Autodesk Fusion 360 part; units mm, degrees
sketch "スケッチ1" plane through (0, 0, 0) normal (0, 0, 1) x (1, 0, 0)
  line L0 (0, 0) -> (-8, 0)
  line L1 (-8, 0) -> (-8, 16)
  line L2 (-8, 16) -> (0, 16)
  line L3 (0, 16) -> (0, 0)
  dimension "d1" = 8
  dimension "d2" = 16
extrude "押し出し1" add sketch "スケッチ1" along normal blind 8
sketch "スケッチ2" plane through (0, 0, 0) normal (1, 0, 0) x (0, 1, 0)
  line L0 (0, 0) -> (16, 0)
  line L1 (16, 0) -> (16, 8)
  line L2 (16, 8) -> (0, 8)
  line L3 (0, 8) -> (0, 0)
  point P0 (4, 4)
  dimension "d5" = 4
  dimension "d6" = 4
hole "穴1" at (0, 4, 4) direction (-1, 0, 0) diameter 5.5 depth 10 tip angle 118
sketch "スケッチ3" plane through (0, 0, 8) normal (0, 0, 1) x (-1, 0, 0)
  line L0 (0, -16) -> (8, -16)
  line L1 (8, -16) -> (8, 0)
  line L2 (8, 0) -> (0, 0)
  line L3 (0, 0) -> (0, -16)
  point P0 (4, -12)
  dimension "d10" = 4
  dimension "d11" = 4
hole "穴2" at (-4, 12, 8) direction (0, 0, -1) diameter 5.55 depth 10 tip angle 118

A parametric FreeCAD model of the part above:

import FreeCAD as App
import Part
import Sketcher

V = App.Vector
Q = App.Units.Quantity


def add_polygon(sketch, points):
    """Adds a closed chain of lines whose ends are joined by coincident constraints."""
    first, n = sketch.GeometryCount, len(points)
    for a, b in zip(points, points[1:] + points[:1]):
        sketch.addGeometry(Part.LineSegment(App.Vector(*a, 0), App.Vector(*b, 0)), False)
    for i in range(n):
        sketch.addConstraint(Sketcher.Constraint("Coincident", first + i, 2, first + (i + 1) % n, 1))

doc = App.newDocument("Part")
body = doc.addObject("PartDesign::Body", "Body")

# Sketch on XY plane
sketch1 = body.newObject("Sketcher::SketchObject", "Sketch")
sketch1.AttachmentSupport = (doc.getObject("XY_Plane"), [""])
sketch1.MapMode = "FlatFace"
add_polygon(sketch1, [(-8, 0), (0, 0), (0, 16), (-8, 16)])  # lines 0-3
sketch1.addConstraint([
    Sketcher.Constraint("Horizontal", 0),
    Sketcher.Constraint("Vertical", 1),
    Sketcher.Constraint("Horizontal", 2),
    Sketcher.Constraint("Vertical", 3),
    Sketcher.Constraint("Coincident", 0, 2, -1, 1),
    Sketcher.Constraint("DistanceX", 0, 1, 0, 2, Q("8 mm")),
    Sketcher.Constraint("DistanceY", 1, 1, 1, 2, Q("16 mm")),
])
pad1 = body.newObject("PartDesign::Pad", "Pad")
pad1.Profile = sketch1
pad1.Length = 8

# Sketch on YZ plane
sketch2 = body.newObject("Sketcher::SketchObject", "Sketch001")
sketch2.AttachmentSupport = (doc.getObject("YZ_Plane"), [""])
sketch2.MapMode = "FlatFace"
sketch2.addGeometry(Part.Circle(V(4, 4, 0), V(0, 0, 1), 2.8), False)
sketch2.addConstraint([
    Sketcher.Constraint("Diameter", 0, Q("5.5 mm")),
    Sketcher.Constraint("DistanceX", -1, 1, 0, 3, Q("4 mm")),
    Sketcher.Constraint("DistanceY", -1, 1, 0, 3, Q("4 mm")),
])
doc.recompute()
hole = body.newObject("PartDesign::Hole", "Hole")
hole.Profile = sketch2
hole.ThreadType = "None"
hole.Diameter = 5.5
hole.DepthType = "Dimension"
hole.Depth = 10
hole.DrillPoint = "Angled"
hole.DrillPointAngle = 118

# Sketch on XY plane
sketch3 = body.newObject("Sketcher::SketchObject", "Sketch002")
sketch3.AttachmentSupport = (doc.getObject("XY_Plane"), [""])
sketch3.MapMode = "FlatFace"
sketch3.AttachmentOffset = App.Placement(V(0, 0, 8), App.Rotation())
sketch3.addGeometry(Part.Circle(V(-4, 12, 0), V(0, 0, 1), 2.8), False)
sketch3.addConstraint([
    Sketcher.Constraint("Diameter", 0, Q("5.55 mm")),
    Sketcher.Constraint("DistanceX", 0, 3, -1, 1, Q("4 mm")),
    Sketcher.Constraint("DistanceY", -1, 1, 0, 3, Q("12 mm")),
])
doc.recompute()
hole2 = body.newObject("PartDesign::Hole", "Hole001")
hole2.Profile = sketch3
hole2.ThreadType = "None"
hole2.Diameter = 5.55
hole2.DepthType = "Dimension"
hole2.Depth = 10
hole2.DrillPoint = "Angled"
hole2.DrillPointAngle = 118

doc.recompute()
